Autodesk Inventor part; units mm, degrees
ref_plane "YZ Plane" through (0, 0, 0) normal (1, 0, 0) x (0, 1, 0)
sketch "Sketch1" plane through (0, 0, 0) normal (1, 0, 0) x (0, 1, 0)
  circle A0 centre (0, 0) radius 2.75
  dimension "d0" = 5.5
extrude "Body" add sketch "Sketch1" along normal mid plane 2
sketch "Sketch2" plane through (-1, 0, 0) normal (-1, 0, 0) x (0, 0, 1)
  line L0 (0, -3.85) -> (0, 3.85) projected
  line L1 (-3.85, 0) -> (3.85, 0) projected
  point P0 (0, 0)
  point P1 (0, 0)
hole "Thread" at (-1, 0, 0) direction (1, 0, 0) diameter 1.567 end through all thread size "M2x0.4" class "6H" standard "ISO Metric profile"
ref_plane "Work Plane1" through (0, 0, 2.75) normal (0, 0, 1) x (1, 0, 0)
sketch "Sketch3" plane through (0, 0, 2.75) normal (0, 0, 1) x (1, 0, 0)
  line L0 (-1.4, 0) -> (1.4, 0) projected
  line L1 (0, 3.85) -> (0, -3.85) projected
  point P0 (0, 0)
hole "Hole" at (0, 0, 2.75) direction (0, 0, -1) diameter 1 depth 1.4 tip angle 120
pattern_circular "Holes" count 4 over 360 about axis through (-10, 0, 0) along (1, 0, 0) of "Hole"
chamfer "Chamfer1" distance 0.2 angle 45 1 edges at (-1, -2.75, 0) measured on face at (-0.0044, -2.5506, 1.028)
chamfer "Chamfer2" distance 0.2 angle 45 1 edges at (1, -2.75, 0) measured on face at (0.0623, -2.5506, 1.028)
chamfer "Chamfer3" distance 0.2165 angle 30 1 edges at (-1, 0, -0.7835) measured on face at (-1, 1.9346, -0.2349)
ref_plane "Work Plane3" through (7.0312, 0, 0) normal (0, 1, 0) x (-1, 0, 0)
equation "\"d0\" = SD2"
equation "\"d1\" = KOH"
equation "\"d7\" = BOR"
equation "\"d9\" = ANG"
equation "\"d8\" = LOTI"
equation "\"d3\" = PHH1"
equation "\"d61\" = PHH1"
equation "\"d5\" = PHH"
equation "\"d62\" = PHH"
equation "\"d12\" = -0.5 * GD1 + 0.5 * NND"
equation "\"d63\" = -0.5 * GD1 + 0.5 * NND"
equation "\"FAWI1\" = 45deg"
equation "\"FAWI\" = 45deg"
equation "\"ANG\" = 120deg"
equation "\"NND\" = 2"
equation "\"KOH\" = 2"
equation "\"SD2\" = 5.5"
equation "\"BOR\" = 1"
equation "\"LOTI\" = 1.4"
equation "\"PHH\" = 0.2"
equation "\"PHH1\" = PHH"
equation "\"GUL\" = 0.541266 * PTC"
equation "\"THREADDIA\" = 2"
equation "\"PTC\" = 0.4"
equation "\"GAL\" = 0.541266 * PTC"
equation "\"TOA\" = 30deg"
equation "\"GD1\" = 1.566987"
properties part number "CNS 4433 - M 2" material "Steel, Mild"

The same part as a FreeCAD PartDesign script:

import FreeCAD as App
import Part
import Sketcher

V = App.Vector


def edges_at(feature, points):
    """Names of the edges that pass closest to the given points."""
    edges = feature.Shape.Edges
    near = lambda p: min(range(len(edges)), key=lambda i: edges[i].distToShape(Part.Vertex(*p))[0])
    return sorted({f"Edge{near(p) + 1}" for p in points})

doc = App.newDocument("Part")
params = doc.addObject("Spreadsheet::Sheet", "Params")
for row, (alias, value) in enumerate([
    ("sketch1_diameter", "5.5 mm"),
    ("pad1_length", "2 mm"),
    ("hole_diameter", "1.567 mm"),
    ("sketch3_diameter", "1 mm"),
    ("hole2_diameter", "1 mm"),
    ("hole2_depth", "1.4 mm"),
    ("chamfer_size", "0.2 mm"),
    ("chamfer2_size", "0.2 mm"),
    ("chamfer3_size", "0.2165 mm"),
], start=1):
    params.set(f"A{row}", alias)
    params.set(f"B{row}", "=" + value)
    params.setAlias(f"B{row}", alias)

body = doc.addObject("PartDesign::Body", "Body")

# Sketch on YZ plane
sketch1 = body.newObject("Sketcher::SketchObject", "Sketch")
sketch1.AttachmentSupport = (doc.getObject("YZ_Plane"), [""])
sketch1.MapMode = "FlatFace"
sketch1.addGeometry(Part.Circle(V(0, 0, 0), V(0, 0, 1), 2.8), False)
sketch1.addConstraint([
    Sketcher.Constraint("Coincident", 0, 3, -1, 1),
    Sketcher.Constraint("Diameter", 0, 5.5),
])
sketch1.setExpression("Constraints[1]", "Params.sketch1_diameter")
pad1 = body.newObject("PartDesign::Pad", "Pad")
pad1.Profile = sketch1
pad1.setExpression("Length", "Params.pad1_length")
pad1.Midplane = True

# Sketch on YZ plane
sketch2 = body.newObject("Sketcher::SketchObject", "Sketch001")
sketch2.AttachmentSupport = (doc.getObject("YZ_Plane"), [""])
sketch2.MapMode = "FlatFace"
sketch2.AttachmentOffset = App.Placement(V(0, 0, -1), App.Rotation())
sketch2.addGeometry(Part.Circle(V(0, 0, 0), V(0, 0, 1), 0.8), False)
sketch2.addConstraint([
    Sketcher.Constraint("Coincident", 0, 3, -1, 1),
    Sketcher.Constraint("Diameter", 0, 1.567),
])
doc.recompute()
hole = body.newObject("PartDesign::Hole", "Hole")
hole.Profile = sketch2
hole.ThreadType = "None"
hole.setExpression("Diameter", "Params.hole_diameter")
hole.DepthType = "ThroughAll"
hole.Reversed = True

# Sketch on XY plane
sketch3 = body.newObject("Sketcher::SketchObject", "Sketch002")
sketch3.AttachmentSupport = (doc.getObject("XY_Plane"), [""])
sketch3.MapMode = "FlatFace"
sketch3.AttachmentOffset = App.Placement(V(0, 0, 2.75), App.Rotation())
sketch3.addGeometry(Part.Circle(V(0, 0, 0), V(0, 0, 1), 0.5), False)
sketch3.addConstraint([
    Sketcher.Constraint("Coincident", 0, 3, -1, 1),
    Sketcher.Constraint("Diameter", 0, 1.0),
])
sketch3.setExpression("Constraints[1]", "Params.sketch3_diameter")
doc.recompute()
hole2 = body.newObject("PartDesign::Hole", "Hole001")
hole2.Profile = sketch3
hole2.ThreadType = "None"
hole2.setExpression("Diameter", "Params.hole2_diameter")
hole2.DepthType = "Dimension"
hole2.setExpression("Depth", "Params.hole2_depth")
hole2.DrillPoint = "Angled"
hole2.DrillPointAngle = 120
doc.recompute()

polarpattern = body.newObject("PartDesign::PolarPattern", "PolarPattern")
polarpattern.Originals = [hole2]
polarpattern.Axis = (doc.getObject("X_Axis"), [""])
polarpattern.Angle = 360
polarpattern.Occurrences = 4
body.Tip = polarpattern
doc.recompute()

chamfer = body.newObject("PartDesign::Chamfer", "Chamfer")
chamfer.Base = (polarpattern, edges_at(polarpattern, [(-1, -2.75, 0)]))
chamfer.setExpression("Size", "Params.chamfer_size")
doc.recompute()

chamfer2 = body.newObject("PartDesign::Chamfer", "Chamfer001")
chamfer2.Base = (chamfer, edges_at(chamfer, [(1, -2.75, 0)]))
chamfer2.setExpression("Size", "Params.chamfer2_size")
doc.recompute()

chamfer3 = body.newObject("PartDesign::Chamfer", "Chamfer002")
chamfer3.Base = (chamfer2, edges_at(chamfer2, [(-1, 0, -0.783)]))
chamfer3.ChamferType = "Distance and Angle"
chamfer3.setExpression("Size", "Params.chamfer3_size")
chamfer3.Angle = 30

doc.recompute()
